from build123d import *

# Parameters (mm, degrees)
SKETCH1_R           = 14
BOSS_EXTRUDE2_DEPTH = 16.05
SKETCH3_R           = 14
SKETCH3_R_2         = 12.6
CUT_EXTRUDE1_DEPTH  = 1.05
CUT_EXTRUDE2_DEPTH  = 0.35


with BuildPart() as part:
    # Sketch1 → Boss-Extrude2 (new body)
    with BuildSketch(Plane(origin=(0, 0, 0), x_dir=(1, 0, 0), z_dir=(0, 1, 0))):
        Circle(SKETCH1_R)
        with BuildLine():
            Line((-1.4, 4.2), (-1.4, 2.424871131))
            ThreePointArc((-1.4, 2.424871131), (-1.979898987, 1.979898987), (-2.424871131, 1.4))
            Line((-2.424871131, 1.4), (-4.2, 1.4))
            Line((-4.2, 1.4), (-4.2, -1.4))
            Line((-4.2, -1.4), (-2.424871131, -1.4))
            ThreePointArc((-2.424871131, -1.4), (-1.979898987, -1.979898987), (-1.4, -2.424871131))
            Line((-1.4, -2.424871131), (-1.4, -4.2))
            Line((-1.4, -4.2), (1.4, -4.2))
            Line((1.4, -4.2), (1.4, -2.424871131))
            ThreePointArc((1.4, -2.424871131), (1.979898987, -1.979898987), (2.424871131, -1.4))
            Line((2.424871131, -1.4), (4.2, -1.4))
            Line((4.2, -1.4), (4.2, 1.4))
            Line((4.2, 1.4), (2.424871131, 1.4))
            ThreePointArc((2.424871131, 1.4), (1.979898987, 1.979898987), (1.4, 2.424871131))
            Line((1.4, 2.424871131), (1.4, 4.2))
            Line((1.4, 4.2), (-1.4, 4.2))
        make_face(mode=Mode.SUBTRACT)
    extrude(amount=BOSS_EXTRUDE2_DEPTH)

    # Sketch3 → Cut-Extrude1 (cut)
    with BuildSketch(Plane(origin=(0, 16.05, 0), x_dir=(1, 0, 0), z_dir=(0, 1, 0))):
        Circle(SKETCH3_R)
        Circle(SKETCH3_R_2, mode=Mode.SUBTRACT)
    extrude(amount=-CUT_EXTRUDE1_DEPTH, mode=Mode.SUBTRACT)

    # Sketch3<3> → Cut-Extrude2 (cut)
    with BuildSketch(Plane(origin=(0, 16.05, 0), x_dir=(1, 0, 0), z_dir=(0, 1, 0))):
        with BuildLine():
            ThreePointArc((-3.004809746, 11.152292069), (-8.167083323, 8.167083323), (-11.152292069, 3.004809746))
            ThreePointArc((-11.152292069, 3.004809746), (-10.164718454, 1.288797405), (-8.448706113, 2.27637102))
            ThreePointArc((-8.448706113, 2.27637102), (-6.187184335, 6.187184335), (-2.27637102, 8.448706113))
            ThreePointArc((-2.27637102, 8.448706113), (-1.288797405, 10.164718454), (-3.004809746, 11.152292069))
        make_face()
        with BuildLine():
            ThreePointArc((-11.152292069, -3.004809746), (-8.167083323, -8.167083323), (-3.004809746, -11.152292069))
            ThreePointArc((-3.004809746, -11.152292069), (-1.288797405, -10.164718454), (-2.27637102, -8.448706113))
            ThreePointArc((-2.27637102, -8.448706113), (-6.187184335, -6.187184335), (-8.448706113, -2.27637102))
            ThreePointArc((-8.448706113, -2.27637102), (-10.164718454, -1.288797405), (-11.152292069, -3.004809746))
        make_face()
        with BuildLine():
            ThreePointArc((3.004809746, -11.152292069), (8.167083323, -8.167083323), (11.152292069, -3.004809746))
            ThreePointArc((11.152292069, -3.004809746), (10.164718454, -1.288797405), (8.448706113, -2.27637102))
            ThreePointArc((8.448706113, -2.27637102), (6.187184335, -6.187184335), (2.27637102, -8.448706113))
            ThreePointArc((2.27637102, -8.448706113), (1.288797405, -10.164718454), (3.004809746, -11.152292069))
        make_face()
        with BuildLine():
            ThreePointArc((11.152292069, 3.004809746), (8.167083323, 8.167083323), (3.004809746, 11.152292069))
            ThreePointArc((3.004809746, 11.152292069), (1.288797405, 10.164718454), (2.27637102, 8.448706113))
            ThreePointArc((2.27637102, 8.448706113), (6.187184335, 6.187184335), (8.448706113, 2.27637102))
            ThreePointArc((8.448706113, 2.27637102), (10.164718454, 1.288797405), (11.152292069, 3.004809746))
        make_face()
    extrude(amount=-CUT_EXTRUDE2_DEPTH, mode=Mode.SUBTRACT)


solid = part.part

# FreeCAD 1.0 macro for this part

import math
import FreeCAD as App
import Part
import Sketcher

doc = App.newDocument("Part")
params = doc.addObject("Spreadsheet::Sheet", "Params")
for row, (alias, value) in enumerate([
    ("sketch1_diameter", "28 mm"),
    ("sketch1_radius", "2.8 mm"),
    ("sketch1_width", "2.8 mm"),
    ("pad1_length", "16.05 mm"),
    ("sketch2_diameter", "28 mm"),
    ("sketch2_diameter2", "25.2 mm"),
    ("pocket1_length", "1.05 mm"),
    ("sketch3_radius", "1.4 mm"),
    ("sketch3_radius2", "11.55 mm"),
    ("pocket2_length", "0.35 mm"),
], start=1):
    params.set(f"A{row}", alias)
    params.set(f"B{row}", "=" + value)
    params.setAlias(f"B{row}", alias)

body = doc.addObject("PartDesign::Body", "Body")

# Sketch on XZ plane
sketch1 = body.newObject("Sketcher::SketchObject", "Sketch")
sketch1.AttachmentSupport = (doc.getObject("XZ_Plane"), [""])
sketch1.MapMode = "FlatFace"
sketch1.addGeometry([
    Part.Circle(App.Vector(0, 0, 0), App.Vector(0, 0, 1), 14),  # 0
    Part.LineSegment(App.Vector(-1.4, -2.4, 0), App.Vector(-1.4, -4.2, 0)),  # 1
    Part.LineSegment(App.Vector(-1.4, -4.2, 0), App.Vector(1.4, -4.2, 0)),  # 2
    Part.LineSegment(App.Vector(1.4, -4.2, 0), App.Vector(1.4, -2.4, 0)),  # 3
    Part.ArcOfCircle(Part.Circle(App.Vector(0, 0, 0), App.Vector(0, 0, 1), 2.8), math.radians(-60), math.radians(-30)),  # 4
    Part.LineSegment(App.Vector(2.4, -1.4, 0), App.Vector(4.2, -1.4, 0)),  # 5
    Part.LineSegment(App.Vector(4.2, -1.4, 0), App.Vector(4.2, 1.4, 0)),  # 6
    Part.LineSegment(App.Vector(4.2, 1.4, 0), App.Vector(2.4, 1.4, 0)),  # 7
    Part.ArcOfCircle(Part.Circle(App.Vector(0, 0, 0), App.Vector(0, 0, 1), 2.8), math.radians(30), math.radians(60)),  # 8
    Part.LineSegment(App.Vector(1.4, 2.4, 0), App.Vector(1.4, 4.2, 0)),  # 9
    Part.LineSegment(App.Vector(1.4, 4.2, 0), App.Vector(-1.4, 4.2, 0)),  # 10
    Part.LineSegment(App.Vector(-1.4, 4.2, 0), App.Vector(-1.4, 2.4, 0)),  # 11
    Part.ArcOfCircle(Part.Circle(App.Vector(0, 0, 0), App.Vector(0, 0, 1), 2.8), math.radians(120), math.radians(150)),  # 12
    Part.LineSegment(App.Vector(-2.4, 1.4, 0), App.Vector(-4.2, 1.4, 0)),  # 13
    Part.LineSegment(App.Vector(-4.2, 1.4, 0), App.Vector(-4.2, -1.4, 0)),  # 14
    Part.LineSegment(App.Vector(-4.2, -1.4, 0), App.Vector(-2.4, -1.4, 0)),  # 15
    Part.ArcOfCircle(Part.Circle(App.Vector(0, 0, 0), App.Vector(0, 0, 1), 2.8), math.radians(-150), math.radians(-120)),  # 16
], False)
sketch1.addConstraint([
    Sketcher.Constraint("Coincident", 1, 2, 2, 1),
    Sketcher.Constraint("Coincident", 2, 2, 3, 1),
    Sketcher.Constraint("Coincident", 3, 2, 4, 1),
    Sketcher.Constraint("Coincident", 4, 2, 5, 1),
    Sketcher.Constraint("Coincident", 5, 2, 6, 1),
    Sketcher.Constraint("Coincident", 6, 2, 7, 1),
    Sketcher.Constraint("Coincident", 7, 2, 8, 1),
    Sketcher.Constraint("Coincident", 8, 2, 9, 1),
    Sketcher.Constraint("Coincident", 9, 2, 10, 1),
    Sketcher.Constraint("Coincident", 10, 2, 11, 1),
    Sketcher.Constraint("Coincident", 11, 2, 12, 1),
    Sketcher.Constraint("Coincident", 12, 2, 13, 1),
    Sketcher.Constraint("Coincident", 13, 2, 14, 1),
    Sketcher.Constraint("Coincident", 14, 2, 15, 1),
    Sketcher.Constraint("Coincident", 15, 2, 16, 1),
    Sketcher.Constraint("Coincident", 16, 2, 1, 1),
    Sketcher.Constraint("Vertical", 1),
    Sketcher.Constraint("Horizontal", 2),
    Sketcher.Constraint("Vertical", 3),
    Sketcher.Constraint("Horizontal", 5),
    Sketcher.Constraint("Vertical", 6),
    Sketcher.Constraint("Horizontal", 7),
    Sketcher.Constraint("Vertical", 9),
    Sketcher.Constraint("Horizontal", 10),
    Sketcher.Constraint("Vertical", 11),
    Sketcher.Constraint("Horizontal", 13),
    Sketcher.Constraint("Vertical", 14),
    Sketcher.Constraint("Horizontal", 15),
    Sketcher.Constraint("Coincident", 0, 3, -1, 1),
    Sketcher.Constraint("Coincident", 4, 3, -1, 1),
    Sketcher.Constraint("Coincident", 8, 3, -1, 1),
    Sketcher.Constraint("Coincident", 12, 3, -1, 1),
    Sketcher.Constraint("Coincident", 16, 3, -1, 1),
    Sketcher.Constraint("Equal", 4, 8),
    Sketcher.Constraint("Equal", 8, 12),
    Sketcher.Constraint("Equal", 12, 16),
    Sketcher.Constraint("Symmetric", 1, 2, 9, 2, -1, 1),
    Sketcher.Constraint("Symmetric", 5, 2, 13, 2, -1, 1),
    Sketcher.Constraint("Horizontal", 8, 2, 11, 2),
    Sketcher.Constraint("Horizontal", 7, 2, 12, 2),
    Sketcher.Constraint("Horizontal", 5, 2, 14, 2),
    Sketcher.Constraint("Horizontal", 3, 2, 16, 2),
    Sketcher.Constraint("Equal", 15, 1),
    Sketcher.Constraint("Equal", 10, 6),
    Sketcher.Constraint("Diameter", 0, 28.0),
    Sketcher.Constraint("Radius", 4, 2.8),
    Sketcher.Constraint("DistanceX", 2, 1, 2, 2, 2.8),
    Sketcher.Constraint("DistanceY", 1, 2, -1, 1, 4.2),
])
sketch1.setExpression("Constraints[44]", "Params.sketch1_diameter")
sketch1.setExpression("Constraints[45]", "Params.sketch1_radius")
sketch1.setExpression("Constraints[46]", "Params.sketch1_width")
pad1 = body.newObject("PartDesign::Pad", "Pad")
pad1.Profile = sketch1
pad1.setExpression("Length", "Params.pad1_length")
pad1.Reversed = True

# Sketch on XZ plane
sketch2 = body.newObject("Sketcher::SketchObject", "Sketch001")
sketch2.AttachmentSupport = (doc.getObject("XZ_Plane"), [""])
sketch2.MapMode = "FlatFace"
sketch2.AttachmentOffset = App.Placement(App.Vector(0, 0, -16.05), App.Rotation())
sketch2.addGeometry([
    Part.Circle(App.Vector(0, 0, 0), App.Vector(0, 0, 1), 14),
    Part.Circle(App.Vector(0, 0, 0), App.Vector(0, 0, 1), 13),
], False)
sketch2.addConstraint([
    Sketcher.Constraint("Coincident", 0, 3, -1, 1),
    Sketcher.Constraint("Coincident", 1, 3, -1, 1),
    Sketcher.Constraint("Diameter", 0, 28.0),
    Sketcher.Constraint("Diameter", 1, 25.2),
])
sketch2.setExpression("Constraints[2]", "Params.sketch2_diameter")
sketch2.setExpression("Constraints[3]", "Params.sketch2_diameter2")
pocket1 = body.newObject("PartDesign::Pocket", "Pocket")
pocket1.Profile = sketch2
pocket1.setExpression("Length", "Params.pocket1_length")
pocket1.Reversed = True

# Sketch on XZ plane
sketch3 = body.newObject("Sketcher::SketchObject", "Sketch002")
sketch3.AttachmentSupport = (doc.getObject("XZ_Plane"), [""])
sketch3.MapMode = "FlatFace"
sketch3.AttachmentOffset = App.Placement(App.Vector(0, 0, -16.05), App.Rotation())
sketch3.addGeometry([
    Part.ArcOfCircle(Part.Circle(App.Vector(0, 0, 0), App.Vector(0, 0, 1), 11.5), math.radians(-165), math.radians(-105)),  # 0
    Part.ArcOfCircle(Part.Circle(App.Vector(-9.8, -2.6, 0), App.Vector(0, 0, 1), 1.4), math.radians(15), math.radians(195)),  # 1
    Part.ArcOfCircle(Part.Circle(App.Vector(0, 0, 0), App.Vector(0, 0, 1), 8.8), math.radians(-165), math.radians(-105)),  # 2
    Part.ArcOfCircle(Part.Circle(App.Vector(-2.6, -9.8, 0), App.Vector(0, 0, 1), 1.4), math.radians(-105), math.radians(75)),  # 3
    Part.ArcOfCircle(Part.Circle(App.Vector(0, 0, 0), App.Vector(0, 0, 1), 11.5), math.radians(105), math.radians(165)),  # 4
    Part.ArcOfCircle(Part.Circle(App.Vector(-2.6, 9.8, 0), App.Vector(0, 0, 1), 1.4), math.radians(-75), math.radians(105)),  # 5
    Part.ArcOfCircle(Part.Circle(App.Vector(0, 0, 0), App.Vector(0, 0, 1), 8.8), math.radians(105), math.radians(165)),  # 6
    Part.ArcOfCircle(Part.Circle(App.Vector(-9.8, 2.6, 0), App.Vector(0, 0, 1), 1.4), math.radians(165), math.radians(345)),  # 7
    Part.ArcOfCircle(Part.Circle(App.Vector(0, 0, 0), App.Vector(0, 0, 1), 11.5), math.radians(15), math.radians(75)),  # 8
    Part.ArcOfCircle(Part.Circle(App.Vector(9.8, 2.6, 0), App.Vector(0, 0, 1), 1.4), math.radians(-165), math.radians(15)),  # 9
    Part.ArcOfCircle(Part.Circle(App.Vector(0, 0, 0), App.Vector(0, 0, 1), 8.8), math.radians(15), math.radians(75)),  # 10
    Part.ArcOfCircle(Part.Circle(App.Vector(2.6, 9.8, 0), App.Vector(0, 0, 1), 1.4), math.radians(75), math.radians(255)),  # 11
    Part.ArcOfCircle(Part.Circle(App.Vector(0, 0, 0), App.Vector(0, 0, 1), 11.5), math.radians(-75), math.radians(-15)),  # 12
    Part.ArcOfCircle(Part.Circle(App.Vector(2.6, -9.8, 0), App.Vector(0, 0, 1), 1.4), math.radians(105), math.radians(285)),  # 13
    Part.ArcOfCircle(Part.Circle(App.Vector(0, 0, 0), App.Vector(0, 0, 1), 8.8), math.radians(-75), math.radians(-15)),  # 14
    Part.ArcOfCircle(Part.Circle(App.Vector(9.8, -2.6, 0), App.Vector(0, 0, 1), 1.4), math.radians(-15), math.radians(165)),  # 15
], False)
sketch3.addConstraint([
    Sketcher.Constraint("Tangent", 0, 1, 1, 2),
    Sketcher.Constraint("Tangent", 1, 1, 2, 1),
    Sketcher.Constraint("Tangent", 2, 2, 3, 2),
    Sketcher.Constraint("Tangent", 3, 1, 0, 2),
    Sketcher.Constraint("Tangent", 4, 1, 5, 2),
    Sketcher.Constraint("Tangent", 5, 1, 6, 1),
    Sketcher.Constraint("Tangent", 6, 2, 7, 2),
    Sketcher.Constraint("Tangent", 7, 1, 4, 2),
    Sketcher.Constraint("Tangent", 8, 1, 9, 2),
    Sketcher.Constraint("Tangent", 9, 1, 10, 1),
    Sketcher.Constraint("Tangent", 10, 2, 11, 2),
    Sketcher.Constraint("Tangent", 11, 1, 8, 2),
    Sketcher.Constraint("Tangent", 12, 1, 13, 2),
    Sketcher.Constraint("Tangent", 13, 1, 14, 1),
    Sketcher.Constraint("Tangent", 14, 2, 15, 2),
    Sketcher.Constraint("Tangent", 15, 1, 12, 2),
    Sketcher.Constraint("Coincident", 0, 3, -1, 1),
    Sketcher.Constraint("Coincident", 2, 3, -1, 1),
    Sketcher.Constraint("Coincident", 4, 3, -1, 1),
    Sketcher.Constraint("Coincident", 6, 3, -1, 1),
    Sketcher.Constraint("Coincident", 8, 3, -1, 1),
    Sketcher.Constraint("Coincident", 10, 3, -1, 1),
    Sketcher.Constraint("Coincident", 12, 3, -1, 1),
    Sketcher.Constraint("Coincident", 14, 3, -1, 1),
    Sketcher.Constraint("Equal", 0, 4),
    Sketcher.Constraint("Equal", 3, 5),
    Sketcher.Constraint("Equal", 4, 8),
    Sketcher.Constraint("Equal", 7, 9),
    Sketcher.Constraint("Equal", 8, 12),
    Sketcher.Constraint("Equal", 11, 13),
    Sketcher.Constraint("Horizontal", 7, 3, 9, 3),
    Sketcher.Constraint("Horizontal", 5, 3, 11, 3),
    Sketcher.Constraint("Horizontal", 3, 3, 13, 3),
    Sketcher.Constraint("Horizontal", 1, 3, 15, 3),
    Sketcher.Constraint("Vertical", 3, 3, 5, 3),
    Sketcher.Constraint("Vertical", 1, 3, 7, 3),
    Sketcher.Constraint("Radius", 1, 1.4),
    Sketcher.Constraint("Radius", 0, 11.55),
    Sketcher.Constraint("DistanceY", 3, 3, 5, 3, 19.600998),
    Sketcher.Constraint("DistanceX", 1, 3, -1, 1, 9.800499),
])
sketch3.setExpression("Constraints[36]", "Params.sketch3_radius")
sketch3.setExpression("Constraints[37]", "Params.sketch3_radius2")
pocket2 = body.newObject("PartDesign::Pocket", "Pocket001")
pocket2.Profile = sketch3
pocket2.setExpression("Length", "Params.pocket2_length")
pocket2.Reversed = True

doc.recompute()
